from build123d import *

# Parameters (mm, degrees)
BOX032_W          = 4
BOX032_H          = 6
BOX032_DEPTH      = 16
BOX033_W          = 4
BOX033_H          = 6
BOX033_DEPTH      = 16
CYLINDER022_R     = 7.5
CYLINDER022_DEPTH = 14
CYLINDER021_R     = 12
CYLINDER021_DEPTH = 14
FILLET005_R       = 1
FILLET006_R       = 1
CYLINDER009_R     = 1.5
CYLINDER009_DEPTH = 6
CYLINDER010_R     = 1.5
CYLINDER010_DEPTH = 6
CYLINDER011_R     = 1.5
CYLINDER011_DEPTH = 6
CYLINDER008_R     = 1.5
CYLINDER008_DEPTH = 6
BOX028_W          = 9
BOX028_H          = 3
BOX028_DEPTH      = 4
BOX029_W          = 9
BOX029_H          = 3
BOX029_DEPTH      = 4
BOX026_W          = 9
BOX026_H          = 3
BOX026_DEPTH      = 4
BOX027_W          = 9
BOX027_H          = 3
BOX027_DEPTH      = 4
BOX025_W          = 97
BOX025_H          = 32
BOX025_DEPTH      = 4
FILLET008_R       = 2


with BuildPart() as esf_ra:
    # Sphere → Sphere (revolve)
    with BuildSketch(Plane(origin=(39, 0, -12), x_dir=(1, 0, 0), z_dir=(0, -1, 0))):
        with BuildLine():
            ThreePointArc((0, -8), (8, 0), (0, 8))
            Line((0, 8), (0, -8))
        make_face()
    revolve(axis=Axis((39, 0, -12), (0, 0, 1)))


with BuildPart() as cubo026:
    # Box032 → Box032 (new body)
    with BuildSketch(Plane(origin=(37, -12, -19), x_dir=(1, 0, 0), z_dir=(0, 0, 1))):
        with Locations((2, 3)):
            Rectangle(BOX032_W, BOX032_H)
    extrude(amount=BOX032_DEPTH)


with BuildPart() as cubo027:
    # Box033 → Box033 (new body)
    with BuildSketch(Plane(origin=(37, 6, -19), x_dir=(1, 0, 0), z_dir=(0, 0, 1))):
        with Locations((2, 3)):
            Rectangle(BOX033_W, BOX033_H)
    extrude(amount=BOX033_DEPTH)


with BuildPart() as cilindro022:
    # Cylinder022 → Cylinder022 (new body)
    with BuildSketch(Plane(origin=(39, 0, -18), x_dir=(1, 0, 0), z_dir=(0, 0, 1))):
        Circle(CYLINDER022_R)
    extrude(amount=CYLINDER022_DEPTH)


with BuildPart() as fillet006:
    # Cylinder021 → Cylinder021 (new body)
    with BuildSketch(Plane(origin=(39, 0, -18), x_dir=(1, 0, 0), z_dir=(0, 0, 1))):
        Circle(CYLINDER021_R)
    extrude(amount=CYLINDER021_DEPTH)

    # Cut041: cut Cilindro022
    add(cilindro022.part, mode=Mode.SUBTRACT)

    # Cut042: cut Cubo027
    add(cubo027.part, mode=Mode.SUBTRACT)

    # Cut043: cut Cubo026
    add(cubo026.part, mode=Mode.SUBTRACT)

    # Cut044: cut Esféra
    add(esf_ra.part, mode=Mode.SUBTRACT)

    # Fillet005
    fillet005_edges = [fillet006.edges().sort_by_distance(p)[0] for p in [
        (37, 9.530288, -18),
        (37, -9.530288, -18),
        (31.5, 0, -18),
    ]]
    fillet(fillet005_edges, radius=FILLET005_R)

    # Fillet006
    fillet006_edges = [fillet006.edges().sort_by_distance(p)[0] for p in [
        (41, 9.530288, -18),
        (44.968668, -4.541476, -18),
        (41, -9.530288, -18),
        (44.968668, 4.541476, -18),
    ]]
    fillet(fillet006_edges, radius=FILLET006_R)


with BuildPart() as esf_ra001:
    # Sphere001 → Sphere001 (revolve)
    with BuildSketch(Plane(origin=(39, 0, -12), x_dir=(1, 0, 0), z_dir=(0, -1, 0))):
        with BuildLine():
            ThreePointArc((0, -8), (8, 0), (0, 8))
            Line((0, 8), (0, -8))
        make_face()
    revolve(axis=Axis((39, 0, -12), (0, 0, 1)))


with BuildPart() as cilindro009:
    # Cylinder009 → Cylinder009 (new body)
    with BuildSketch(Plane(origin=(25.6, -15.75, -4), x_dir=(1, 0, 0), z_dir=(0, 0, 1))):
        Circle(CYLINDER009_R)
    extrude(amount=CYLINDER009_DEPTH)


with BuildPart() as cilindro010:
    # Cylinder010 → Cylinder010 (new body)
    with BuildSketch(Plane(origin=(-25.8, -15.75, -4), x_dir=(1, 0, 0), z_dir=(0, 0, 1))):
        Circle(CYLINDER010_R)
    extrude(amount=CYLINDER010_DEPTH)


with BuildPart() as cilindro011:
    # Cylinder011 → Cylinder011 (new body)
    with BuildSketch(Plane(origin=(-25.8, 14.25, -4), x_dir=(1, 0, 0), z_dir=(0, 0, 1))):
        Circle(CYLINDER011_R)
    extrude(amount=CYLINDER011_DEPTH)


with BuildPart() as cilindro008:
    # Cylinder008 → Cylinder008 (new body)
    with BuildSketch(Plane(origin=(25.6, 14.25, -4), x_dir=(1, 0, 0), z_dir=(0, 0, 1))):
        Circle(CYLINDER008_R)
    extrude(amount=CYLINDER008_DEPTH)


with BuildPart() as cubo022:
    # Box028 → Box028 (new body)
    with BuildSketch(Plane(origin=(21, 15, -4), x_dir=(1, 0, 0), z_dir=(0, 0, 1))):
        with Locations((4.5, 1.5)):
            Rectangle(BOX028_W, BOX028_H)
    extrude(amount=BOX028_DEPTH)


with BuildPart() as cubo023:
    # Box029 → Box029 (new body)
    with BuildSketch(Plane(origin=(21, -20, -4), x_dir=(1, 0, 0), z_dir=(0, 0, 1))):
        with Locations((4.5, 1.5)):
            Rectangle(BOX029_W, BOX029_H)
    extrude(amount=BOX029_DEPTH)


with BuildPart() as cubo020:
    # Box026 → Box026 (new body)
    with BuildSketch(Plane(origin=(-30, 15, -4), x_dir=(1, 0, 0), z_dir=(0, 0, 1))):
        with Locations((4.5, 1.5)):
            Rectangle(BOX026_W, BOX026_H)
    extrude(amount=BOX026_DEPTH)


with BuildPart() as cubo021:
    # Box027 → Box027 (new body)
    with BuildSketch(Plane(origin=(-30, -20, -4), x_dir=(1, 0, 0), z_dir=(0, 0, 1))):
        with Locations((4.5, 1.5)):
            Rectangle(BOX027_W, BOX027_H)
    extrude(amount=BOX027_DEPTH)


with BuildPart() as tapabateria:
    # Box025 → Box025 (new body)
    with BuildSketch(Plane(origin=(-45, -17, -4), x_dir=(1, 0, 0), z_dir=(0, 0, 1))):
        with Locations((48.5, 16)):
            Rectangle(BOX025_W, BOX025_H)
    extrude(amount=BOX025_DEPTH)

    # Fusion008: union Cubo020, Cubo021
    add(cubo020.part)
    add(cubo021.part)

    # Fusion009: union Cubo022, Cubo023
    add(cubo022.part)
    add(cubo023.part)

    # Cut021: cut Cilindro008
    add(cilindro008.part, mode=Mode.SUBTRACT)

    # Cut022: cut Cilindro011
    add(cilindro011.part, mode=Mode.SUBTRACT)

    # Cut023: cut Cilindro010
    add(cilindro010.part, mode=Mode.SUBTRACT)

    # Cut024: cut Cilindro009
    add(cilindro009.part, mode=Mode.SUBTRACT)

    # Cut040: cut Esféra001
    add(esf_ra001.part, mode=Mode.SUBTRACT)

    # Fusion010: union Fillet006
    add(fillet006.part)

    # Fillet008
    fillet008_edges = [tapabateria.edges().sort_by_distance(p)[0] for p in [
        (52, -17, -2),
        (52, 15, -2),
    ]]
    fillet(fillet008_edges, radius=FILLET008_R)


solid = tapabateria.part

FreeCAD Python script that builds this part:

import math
import FreeCAD as App
import Part
import Sketcher
Q = App.Units.Quantity


def edges_at(feature, points):
    """Names of the edges that pass closest to the given points."""
    edges = feature.Shape.Edges
    near = lambda p: min(range(len(edges)), key=lambda i: edges[i].distToShape(Part.Vertex(*p))[0])
    return sorted({f"Edge{near(p) + 1}" for p in points})


def add_polygon(sketch, points):
    """Adds a closed chain of lines whose ends are joined by coincident constraints."""
    first, n = sketch.GeometryCount, len(points)
    for a, b in zip(points, points[1:] + points[:1]):
        sketch.addGeometry(Part.LineSegment(App.Vector(*a, 0), App.Vector(*b, 0)), False)
    for i in range(n):
        sketch.addConstraint(Sketcher.Constraint("Coincident", first + i, 2, first + (i + 1) % n, 1))

doc = App.newDocument("Part")
body = doc.addObject("PartDesign::Body", "Body")

# Sketch on XZ plane
sketch1 = body.newObject("Sketcher::SketchObject", "Sketch")
sketch1.AttachmentSupport = (doc.getObject("XZ_Plane"), [""])
sketch1.MapMode = "FlatFace"
sketch1.addGeometry([
    Part.ArcOfCircle(Part.Circle(App.Vector(39, -12, 0), App.Vector(0, 0, 1), 8), math.radians(-90), math.radians(90)),
    Part.LineSegment(App.Vector(39, -4, 0), App.Vector(39, -20, 0)),
], False)
sketch1.addGeometry(Part.LineSegment(App.Vector(39, -20, 0), App.Vector(39, -4, 0)), True)  # axis
sketch1.addConstraint([
    Sketcher.Constraint("Coincident", 0, 1, 1, 2),
    Sketcher.Constraint("Coincident", 1, 1, 0, 2),
    Sketcher.Constraint("Vertical", 1),
    Sketcher.Constraint("Vertical", 2),
    Sketcher.Constraint("Coincident", 2, 1, 0, 1),
    Sketcher.Constraint("Equal", 1, 2),
    Sketcher.Constraint("Radius", 0, Q("8 mm")),
    Sketcher.Constraint("DistanceX", -1, 1, 0, 3, Q("39 mm")),
    Sketcher.Constraint("DistanceY", 0, 3, -1, 1, Q("12 mm")),
    Sketcher.Constraint("DistanceX", -1, 1, 0, 1, Q("39 mm")),
])
revolution = body.newObject("PartDesign::Revolution", "Revolution")
revolution.Profile = sketch1
revolution.ReferenceAxis = (sketch1, ["Axis0"])
revolution.Angle = 360
body2 = doc.addObject("PartDesign::Body", "Body001")

# Sketch on XY plane
sketch2 = body2.newObject("Sketcher::SketchObject", "Sketch001")
sketch2.AttachmentSupport = (doc.getObject("XY_Plane001"), [""])
sketch2.MapMode = "FlatFace"
sketch2.AttachmentOffset = App.Placement(App.Vector(0, 0, -19), App.Rotation())
add_polygon(sketch2, [(37, -6), (37, -12), (41, -12), (41, -6)])  # lines 0-3
sketch2.addConstraint([
    Sketcher.Constraint("Vertical", 0),
    Sketcher.Constraint("Horizontal", 1),
    Sketcher.Constraint("Vertical", 2),
    Sketcher.Constraint("Horizontal", 3),
    Sketcher.Constraint("DistanceX", 1, 1, 1, 2, Q("4 mm")),
    Sketcher.Constraint("DistanceY", 0, 2, 0, 1, Q("6 mm")),
    Sketcher.Constraint("DistanceX", -1, 1, 0, 2, Q("37 mm")),
    Sketcher.Constraint("DistanceY", 0, 2, -1, 1, Q("12 mm")),
])
pad1 = body2.newObject("PartDesign::Pad", "Pad")
pad1.Profile = sketch2
pad1.Length = 16
body3 = doc.addObject("PartDesign::Body", "Body002")

# Sketch on XY plane
sketch3 = body3.newObject("Sketcher::SketchObject", "Sketch002")
sketch3.AttachmentSupport = (doc.getObject("XY_Plane002"), [""])
sketch3.MapMode = "FlatFace"
sketch3.AttachmentOffset = App.Placement(App.Vector(0, 0, -19), App.Rotation())
add_polygon(sketch3, [(37, 12), (37, 6), (41, 6), (41, 12)])  # lines 0-3
sketch3.addConstraint([
    Sketcher.Constraint("Vertical", 0),
    Sketcher.Constraint("Horizontal", 1),
    Sketcher.Constraint("Vertical", 2),
    Sketcher.Constraint("Horizontal", 3),
    Sketcher.Constraint("DistanceX", 1, 1, 1, 2, Q("4 mm")),
    Sketcher.Constraint("DistanceY", 0, 2, 0, 1, Q("6 mm")),
    Sketcher.Constraint("DistanceX", -1, 1, 0, 2, Q("37 mm")),
    Sketcher.Constraint("DistanceY", -1, 1, 0, 2, Q("6 mm")),
])
pad2 = body3.newObject("PartDesign::Pad", "Pad001")
pad2.Profile = sketch3
pad2.Length = 16
body4 = doc.addObject("PartDesign::Body", "Body003")

# Sketch on XY plane
sketch4 = body4.newObject("Sketcher::SketchObject", "Sketch003")
sketch4.AttachmentSupport = (doc.getObject("XY_Plane003"), [""])
sketch4.MapMode = "FlatFace"
sketch4.AttachmentOffset = App.Placement(App.Vector(0, 0, -18), App.Rotation())
sketch4.addGeometry(Part.Circle(App.Vector(39, 0, 0), App.Vector(0, 0, 1), 8), False)
sketch4.addConstraint([
    Sketcher.Constraint("PointOnObject", 0, 3, -1),
    Sketcher.Constraint("Diameter", 0, Q("15 mm")),
    Sketcher.Constraint("DistanceX", -1, 1, 0, 3, Q("39 mm")),
])
pad3 = body4.newObject("PartDesign::Pad", "Pad002")
pad3.Profile = sketch4
pad3.Length = 14
body5 = doc.addObject("PartDesign::Body", "Body004")
body5.AllowCompound = True

# Sketch on XY plane
sketch5 = body5.newObject("Sketcher::SketchObject", "Sketch004")
sketch5.AttachmentSupport = (doc.getObject("XY_Plane004"), [""])
sketch5.MapMode = "FlatFace"
sketch5.AttachmentOffset = App.Placement(App.Vector(0, 0, -18), App.Rotation())
sketch5.addGeometry(Part.Circle(App.Vector(39, 0, 0), App.Vector(0, 0, 1), 12), False)
sketch5.addConstraint([
    Sketcher.Constraint("PointOnObject", 0, 3, -1),
    Sketcher.Constraint("Diameter", 0, Q("24 mm")),
    Sketcher.Constraint("DistanceX", -1, 1, 0, 3, Q("39 mm")),
])
pad4 = body5.newObject("PartDesign::Pad", "Pad003")
pad4.Profile = sketch5
pad4.Length = 14
doc.recompute()

boolean = body5.newObject("PartDesign::Boolean", "Boolean")
boolean.Type = "Cut"
boolean.addObjects([body4])
doc.recompute()

boolean2 = body5.newObject("PartDesign::Boolean", "Boolean001")
boolean2.Type = "Cut"
boolean2.addObjects([body3])
doc.recompute()

boolean3 = body5.newObject("PartDesign::Boolean", "Boolean002")
boolean3.Type = "Cut"
boolean3.addObjects([body2])
doc.recompute()

boolean4 = body5.newObject("PartDesign::Boolean", "Boolean003")
boolean4.Type = "Cut"
boolean4.addObjects([body])
doc.recompute()

fillet = body5.newObject("PartDesign::Fillet", "Fillet")
fillet.Base = (boolean4, edges_at(boolean4, [(37, 9.53, -18), (37, -9.53, -18), (31.5, 0, -18)]))
fillet.Radius = 1
doc.recompute()

fillet2 = body5.newObject("PartDesign::Fillet", "Fillet001")
fillet2.Base = (fillet, edges_at(fillet, [
    (41, 9.53, -18),
    (46.5, 0, -18),
    (41, -9.53, -18),
    (46.5, 0, -18),
]))
fillet2.Radius = 1
body6 = doc.addObject("PartDesign::Body", "Body005")

# Sketch on XZ plane
sketch6 = body6.newObject("Sketcher::SketchObject", "Sketch005")
sketch6.AttachmentSupport = (doc.getObject("XZ_Plane005"), [""])
sketch6.MapMode = "FlatFace"
sketch6.addGeometry([
    Part.ArcOfCircle(Part.Circle(App.Vector(39, -12, 0), App.Vector(0, 0, 1), 8), math.radians(-90), math.radians(90)),
    Part.LineSegment(App.Vector(39, -4, 0), App.Vector(39, -20, 0)),
], False)
sketch6.addGeometry(Part.LineSegment(App.Vector(39, -20, 0), App.Vector(39, -4, 0)), True)  # axis
sketch6.addConstraint([
    Sketcher.Constraint("Coincident", 0, 1, 1, 2),
    Sketcher.Constraint("Coincident", 1, 1, 0, 2),
    Sketcher.Constraint("Vertical", 1),
    Sketcher.Constraint("Vertical", 2),
    Sketcher.Constraint("Coincident", 2, 1, 0, 1),
    Sketcher.Constraint("Equal", 1, 2),
    Sketcher.Constraint("Radius", 0, Q("8 mm")),
    Sketcher.Constraint("DistanceX", -1, 1, 0, 3, Q("39 mm")),
    Sketcher.Constraint("DistanceY", 0, 3, -1, 1, Q("12 mm")),
    Sketcher.Constraint("DistanceX", -1, 1, 0, 1, Q("39 mm")),
])
revolution2 = body6.newObject("PartDesign::Revolution", "Revolution001")
revolution2.Profile = sketch6
revolution2.ReferenceAxis = (sketch6, ["Axis0"])
revolution2.Angle = 360
body7 = doc.addObject("PartDesign::Body", "Body006")

# Sketch on XY plane
sketch7 = body7.newObject("Sketcher::SketchObject", "Sketch006")
sketch7.AttachmentSupport = (doc.getObject("XY_Plane006"), [""])
sketch7.MapMode = "FlatFace"
sketch7.AttachmentOffset = App.Placement(App.Vector(0, 0, -4), App.Rotation())
sketch7.addGeometry(Part.Circle(App.Vector(25.6, -15.8, 0), App.Vector(0, 0, 1), 1.5), False)
sketch7.addConstraint([
    Sketcher.Constraint("Diameter", 0, Q("3 mm")),
    Sketcher.Constraint("DistanceX", -1, 1, 0, 3, Q("25.6 mm")),
    Sketcher.Constraint("DistanceY", 0, 3, -1, 1, Q("15.75 mm")),
])
pad5 = body7.newObject("PartDesign::Pad", "Pad004")
pad5.Profile = sketch7
pad5.Length = 6
body8 = doc.addObject("PartDesign::Body", "Body007")

# Sketch on XY plane
sketch8 = body8.newObject("Sketcher::SketchObject", "Sketch007")
sketch8.AttachmentSupport = (doc.getObject("XY_Plane007"), [""])
sketch8.MapMode = "FlatFace"
sketch8.AttachmentOffset = App.Placement(App.Vector(0, 0, -4), App.Rotation())
sketch8.addGeometry(Part.Circle(App.Vector(-25.8, -15.8, 0), App.Vector(0, 0, 1), 1.5), False)
sketch8.addConstraint([
    Sketcher.Constraint("Diameter", 0, Q("3 mm")),
    Sketcher.Constraint("DistanceX", 0, 3, -1, 1, Q("25.8 mm")),
    Sketcher.Constraint("DistanceY", 0, 3, -1, 1, Q("15.75 mm")),
])
pad6 = body8.newObject("PartDesign::Pad", "Pad005")
pad6.Profile = sketch8
pad6.Length = 6
body9 = doc.addObject("PartDesign::Body", "Body008")

# Sketch on XY plane
sketch9 = body9.newObject("Sketcher::SketchObject", "Sketch008")
sketch9.AttachmentSupport = (doc.getObject("XY_Plane008"), [""])
sketch9.MapMode = "FlatFace"
sketch9.AttachmentOffset = App.Placement(App.Vector(0, 0, -4), App.Rotation())
sketch9.addGeometry(Part.Circle(App.Vector(-25.8, 14.2, 0), App.Vector(0, 0, 1), 1.5), False)
sketch9.addConstraint([
    Sketcher.Constraint("Diameter", 0, Q("3 mm")),
    Sketcher.Constraint("DistanceX", 0, 3, -1, 1, Q("25.8 mm")),
    Sketcher.Constraint("DistanceY", -1, 1, 0, 3, Q("14.25 mm")),
])
pad7 = body9.newObject("PartDesign::Pad", "Pad006")
pad7.Profile = sketch9
pad7.Length = 6
body10 = doc.addObject("PartDesign::Body", "Body009")

# Sketch on XY plane
sketch10 = body10.newObject("Sketcher::SketchObject", "Sketch009")
sketch10.AttachmentSupport = (doc.getObject("XY_Plane009"), [""])
sketch10.MapMode = "FlatFace"
sketch10.AttachmentOffset = App.Placement(App.Vector(0, 0, -4), App.Rotation())
sketch10.addGeometry(Part.Circle(App.Vector(25.6, 14.2, 0), App.Vector(0, 0, 1), 1.5), False)
sketch10.addConstraint([
    Sketcher.Constraint("Diameter", 0, Q("3 mm")),
    Sketcher.Constraint("DistanceX", -1, 1, 0, 3, Q("25.6 mm")),
    Sketcher.Constraint("DistanceY", -1, 1, 0, 3, Q("14.25 mm")),
])
pad8 = body10.newObject("PartDesign::Pad", "Pad007")
pad8.Profile = sketch10
pad8.Length = 6
body11 = doc.addObject("PartDesign::Body", "Body010")

# Sketch on XY plane
sketch11 = body11.newObject("Sketcher::SketchObject", "Sketch010")
sketch11.AttachmentSupport = (doc.getObject("XY_Plane010"), [""])
sketch11.MapMode = "FlatFace"
sketch11.AttachmentOffset = App.Placement(App.Vector(0, 0, -4), App.Rotation())
add_polygon(sketch11, [(21, 18), (21, 15), (30, 15), (30, 18)])  # lines 0-3
sketch11.addConstraint([
    Sketcher.Constraint("Vertical", 0),
    Sketcher.Constraint("Horizontal", 1),
    Sketcher.Constraint("Vertical", 2),
    Sketcher.Constraint("Horizontal", 3),
    Sketcher.Constraint("DistanceX", 1, 1, 1, 2, Q("9 mm")),
    Sketcher.Constraint("DistanceY", 0, 2, 0, 1, Q("3 mm")),
    Sketcher.Constraint("DistanceX", -1, 1, 0, 2, Q("21 mm")),
    Sketcher.Constraint("DistanceY", -1, 1, 0, 2, Q("15 mm")),
])
pad9 = body11.newObject("PartDesign::Pad", "Pad008")
pad9.Profile = sketch11
pad9.Length = 4
body12 = doc.addObject("PartDesign::Body", "Body011")

# Sketch on XY plane
sketch12 = body12.newObject("Sketcher::SketchObject", "Sketch011")
sketch12.AttachmentSupport = (doc.getObject("XY_Plane011"), [""])
sketch12.MapMode = "FlatFace"
sketch12.AttachmentOffset = App.Placement(App.Vector(0, 0, -4), App.Rotation())
add_polygon(sketch12, [(21, -17), (21, -20), (30, -20), (30, -17)])  # lines 0-3
sketch12.addConstraint([
    Sketcher.Constraint("Vertical", 0),
    Sketcher.Constraint("Horizontal", 1),
    Sketcher.Constraint("Vertical", 2),
    Sketcher.Constraint("Horizontal", 3),
    Sketcher.Constraint("DistanceX", 1, 1, 1, 2, Q("9 mm")),
    Sketcher.Constraint("DistanceY", 0, 2, 0, 1, Q("3 mm")),
    Sketcher.Constraint("DistanceX", -1, 1, 0, 2, Q("21 mm")),
    Sketcher.Constraint("DistanceY", 0, 2, -1, 1, Q("20 mm")),
])
pad10 = body12.newObject("PartDesign::Pad", "Pad009")
pad10.Profile = sketch12
pad10.Length = 4
body13 = doc.addObject("PartDesign::Body", "Body012")

# Sketch on XY plane
sketch13 = body13.newObject("Sketcher::SketchObject", "Sketch012")
sketch13.AttachmentSupport = (doc.getObject("XY_Plane012"), [""])
sketch13.MapMode = "FlatFace"
sketch13.AttachmentOffset = App.Placement(App.Vector(0, 0, -4), App.Rotation())
add_polygon(sketch13, [(-30, 18), (-30, 15), (-21, 15), (-21, 18)])  # lines 0-3
sketch13.addConstraint([
    Sketcher.Constraint("Vertical", 0),
    Sketcher.Constraint("Horizontal", 1),
    Sketcher.Constraint("Vertical", 2),
    Sketcher.Constraint("Horizontal", 3),
    Sketcher.Constraint("DistanceX", 1, 1, 1, 2, Q("9 mm")),
    Sketcher.Constraint("DistanceY", 0, 2, 0, 1, Q("3 mm")),
    Sketcher.Constraint("DistanceX", 0, 2, -1, 1, Q("30 mm")),
    Sketcher.Constraint("DistanceY", -1, 1, 0, 2, Q("15 mm")),
])
pad11 = body13.newObject("PartDesign::Pad", "Pad010")
pad11.Profile = sketch13
pad11.Length = 4
body14 = doc.addObject("PartDesign::Body", "Body013")

# Sketch on XY plane
sketch14 = body14.newObject("Sketcher::SketchObject", "Sketch013")
sketch14.AttachmentSupport = (doc.getObject("XY_Plane013"), [""])
sketch14.MapMode = "FlatFace"
sketch14.AttachmentOffset = App.Placement(App.Vector(0, 0, -4), App.Rotation())
add_polygon(sketch14, [(-30, -17), (-30, -20), (-21, -20), (-21, -17)])  # lines 0-3
sketch14.addConstraint([
    Sketcher.Constraint("Vertical", 0),
    Sketcher.Constraint("Horizontal", 1),
    Sketcher.Constraint("Vertical", 2),
    Sketcher.Constraint("Horizontal", 3),
    Sketcher.Constraint("DistanceX", 1, 1, 1, 2, Q("9 mm")),
    Sketcher.Constraint("DistanceY", 0, 2, 0, 1, Q("3 mm")),
    Sketcher.Constraint("DistanceX", 0, 2, -1, 1, Q("30 mm")),
    Sketcher.Constraint("DistanceY", 0, 2, -1, 1, Q("20 mm")),
])
pad12 = body14.newObject("PartDesign::Pad", "Pad011")
pad12.Profile = sketch14
pad12.Length = 4
body15 = doc.addObject("PartDesign::Body", "Body014")

# Sketch on XY plane
sketch15 = body15.newObject("Sketcher::SketchObject", "Sketch014")
sketch15.AttachmentSupport = (doc.getObject("XY_Plane014"), [""])
sketch15.MapMode = "FlatFace"
sketch15.AttachmentOffset = App.Placement(App.Vector(0, 0, -4), App.Rotation())
add_polygon(sketch15, [(-45, 15), (-45, -17), (52, -17), (52, 15)])  # lines 0-3
sketch15.addConstraint([
    Sketcher.Constraint("Vertical", 0),
    Sketcher.Constraint("Horizontal", 1),
    Sketcher.Constraint("Vertical", 2),
    Sketcher.Constraint("Horizontal", 3),
    Sketcher.Constraint("DistanceX", 1, 1, 1, 2, Q("97 mm")),
    Sketcher.Constraint("DistanceY", 0, 2, 0, 1, Q("32 mm")),
    Sketcher.Constraint("DistanceX", 0, 2, -1, 1, Q("45 mm")),
    Sketcher.Constraint("DistanceY", 0, 2, -1, 1, Q("17 mm")),
])
pad13 = body15.newObject("PartDesign::Pad", "Pad012")
pad13.Profile = sketch15
pad13.Length = 4
doc.recompute()

boolean5 = body15.newObject("PartDesign::Boolean", "Boolean004")
boolean5.Type = "Fuse"
boolean5.addObjects([body13])
doc.recompute()

boolean6 = body15.newObject("PartDesign::Boolean", "Boolean005")
boolean6.Type = "Fuse"
boolean6.addObjects([body14])
doc.recompute()

boolean7 = body15.newObject("PartDesign::Boolean", "Boolean006")
boolean7.Type = "Fuse"
boolean7.addObjects([body11])
doc.recompute()

boolean8 = body15.newObject("PartDesign::Boolean", "Boolean007")
boolean8.Type = "Fuse"
boolean8.addObjects([body12])
doc.recompute()

boolean9 = body15.newObject("PartDesign::Boolean", "Boolean008")
boolean9.Type = "Cut"
boolean9.addObjects([body10])
doc.recompute()

boolean10 = body15.newObject("PartDesign::Boolean", "Boolean009")
boolean10.Type = "Cut"
boolean10.addObjects([body9])
doc.recompute()

boolean11 = body15.newObject("PartDesign::Boolean", "Boolean010")
boolean11.Type = "Cut"
boolean11.addObjects([body8])
doc.recompute()

boolean12 = body15.newObject("PartDesign::Boolean", "Boolean011")
boolean12.Type = "Cut"
boolean12.addObjects([body7])
doc.recompute()

boolean13 = body15.newObject("PartDesign::Boolean", "Boolean012")
boolean13.Type = "Cut"
boolean13.addObjects([body6])
doc.recompute()

boolean14 = body15.newObject("PartDesign::Boolean", "Boolean013")
boolean14.Type = "Fuse"
boolean14.addObjects([body5])
doc.recompute()

fillet3 = body15.newObject("PartDesign::Fillet", "Fillet002")
fillet3.Base = (boolean14, edges_at(boolean14, [(52, -17, -2), (52, 15, -2)]))
fillet3.Radius = 2

doc.recompute()
